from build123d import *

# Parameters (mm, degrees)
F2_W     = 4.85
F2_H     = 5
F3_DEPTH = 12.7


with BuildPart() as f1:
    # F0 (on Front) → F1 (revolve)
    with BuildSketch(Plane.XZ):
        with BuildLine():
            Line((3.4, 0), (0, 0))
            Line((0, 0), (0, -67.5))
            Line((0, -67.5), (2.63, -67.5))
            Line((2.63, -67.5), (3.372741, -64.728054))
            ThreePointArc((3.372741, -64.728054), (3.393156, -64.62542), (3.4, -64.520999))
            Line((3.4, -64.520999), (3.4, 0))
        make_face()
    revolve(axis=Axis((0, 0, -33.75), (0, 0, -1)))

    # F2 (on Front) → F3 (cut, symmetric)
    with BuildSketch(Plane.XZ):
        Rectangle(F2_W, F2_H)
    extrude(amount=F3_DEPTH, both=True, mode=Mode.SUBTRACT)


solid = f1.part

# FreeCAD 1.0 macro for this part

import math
import FreeCAD as App
import Part
import Sketcher
Q = App.Units.Quantity

doc = App.newDocument("Part")
body = doc.addObject("PartDesign::Body", "Body")

# Sketch on XZ plane
sketch1 = body.newObject("Sketcher::SketchObject", "Sketch")
sketch1.AttachmentSupport = (doc.getObject("XZ_Plane"), [""])
sketch1.MapMode = "FlatFace"
sketch1.addGeometry([
    Part.LineSegment(App.Vector(3.4, 0, 0), App.Vector(0, 0, 0)),  # 0
    Part.LineSegment(App.Vector(0, 0, 0), App.Vector(0, -67.5, 0)),  # 1
    Part.LineSegment(App.Vector(0, -67.5, 0), App.Vector(2.63, -67.5, 0)),  # 2
    Part.LineSegment(App.Vector(2.63, -67.5, 0), App.Vector(3.37, -64.73, 0)),  # 3
    Part.ArcOfCircle(Part.Circle(App.Vector(2.6, -64.52, 0), App.Vector(0, 0, 1), 0.8), math.radians(-15), math.radians(0)),  # 4
    Part.LineSegment(App.Vector(3.4, -64.52, 0), App.Vector(3.4, 0, 0)),  # 5
], False)
sketch1.addConstraint([
    Sketcher.Constraint("Coincident", 0, 2, 1, 1),
    Sketcher.Constraint("Coincident", 1, 2, 2, 1),
    Sketcher.Constraint("Coincident", 2, 2, 3, 1),
    Sketcher.Constraint("Coincident", 3, 2, 4, 1),
    Sketcher.Constraint("Tangent", 4, 2, 5, 1),
    Sketcher.Constraint("Coincident", 5, 2, 0, 1),
    Sketcher.Constraint("Horizontal", 0),
    Sketcher.Constraint("Vertical", 1),
    Sketcher.Constraint("Horizontal", 2),
    Sketcher.Constraint("Vertical", 5),
    Sketcher.Constraint("Coincident", 0, 2, -1, 1),
    Sketcher.Constraint("Angle", 3, Q("74.999994 deg")),
    Sketcher.Constraint("DistanceX", 0, 2, 0, 1, 3.4),
    Sketcher.Constraint("DistanceY", 1, 2, 1, 1, 67.5),
    Sketcher.Constraint("DistanceX", 2, 1, 2, 2, 2.63),
    Sketcher.Constraint("DistanceY", 5, 1, 5, 2, 64.520999),
    Sketcher.Constraint("Distance", 3, 2.86973),
])
revolution = body.newObject("PartDesign::Revolution", "Revolution")
revolution.Profile = sketch1
revolution.ReferenceAxis = (sketch1, ["V_Axis"])
revolution.Angle = 360

# Sketch on XZ plane
sketch2 = body.newObject("Sketcher::SketchObject", "Sketch001")
sketch2.AttachmentSupport = (doc.getObject("XZ_Plane"), [""])
sketch2.MapMode = "FlatFace"
sketch2.addGeometry([
    Part.LineSegment(App.Vector(-2.4, 2.5, 0), App.Vector(-2.4, -2.5, 0)),
    Part.LineSegment(App.Vector(-2.4, -2.5, 0), App.Vector(2.4, -2.5, 0)),
    Part.LineSegment(App.Vector(2.4, -2.5, 0), App.Vector(2.4, 2.5, 0)),
    Part.LineSegment(App.Vector(2.4, 2.5, 0), App.Vector(-2.4, 2.5, 0)),
], False)
sketch2.addConstraint([
    Sketcher.Constraint("Coincident", 0, 2, 1, 1),
    Sketcher.Constraint("Coincident", 1, 2, 2, 1),
    Sketcher.Constraint("Coincident", 2, 2, 3, 1),
    Sketcher.Constraint("Coincident", 3, 2, 0, 1),
    Sketcher.Constraint("Vertical", 0),
    Sketcher.Constraint("Horizontal", 1),
    Sketcher.Constraint("Vertical", 2),
    Sketcher.Constraint("Horizontal", 3),
    Sketcher.Constraint("Symmetric", 0, 2, 2, 2, -1, 1),
    Sketcher.Constraint("DistanceY", 0, 2, 0, 1, 5.0),
    Sketcher.Constraint("DistanceX", 1, 1, 1, 2, 4.85),
])
pocket1 = body.newObject("PartDesign::Pocket", "Pocket")
pocket1.Profile = sketch2
pocket1.Length = 25.4
pocket1.Midplane = True

doc.recompute()
